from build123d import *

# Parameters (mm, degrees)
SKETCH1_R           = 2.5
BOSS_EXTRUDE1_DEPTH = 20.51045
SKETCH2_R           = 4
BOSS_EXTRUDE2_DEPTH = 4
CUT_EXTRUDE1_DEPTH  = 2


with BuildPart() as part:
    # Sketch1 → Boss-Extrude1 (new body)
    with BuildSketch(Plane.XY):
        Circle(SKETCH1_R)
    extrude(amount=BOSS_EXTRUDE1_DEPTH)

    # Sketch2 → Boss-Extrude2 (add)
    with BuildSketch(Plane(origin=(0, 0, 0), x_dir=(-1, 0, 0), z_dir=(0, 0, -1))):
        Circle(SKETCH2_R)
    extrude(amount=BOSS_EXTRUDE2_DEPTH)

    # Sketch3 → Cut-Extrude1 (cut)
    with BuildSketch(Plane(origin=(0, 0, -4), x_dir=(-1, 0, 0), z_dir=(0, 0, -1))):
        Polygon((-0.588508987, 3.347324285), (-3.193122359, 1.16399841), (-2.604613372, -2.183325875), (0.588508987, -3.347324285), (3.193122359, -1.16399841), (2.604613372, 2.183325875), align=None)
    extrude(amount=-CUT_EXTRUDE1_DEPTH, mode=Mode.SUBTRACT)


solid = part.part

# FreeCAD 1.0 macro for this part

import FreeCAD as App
import Part
import Sketcher
from FreeCAD import Vector
Q = App.Units.Quantity

doc = App.newDocument("Part")
body = doc.addObject("PartDesign::Body", "Body")

# Sketch on XY plane
sketch1 = body.newObject("Sketcher::SketchObject", "Sketch")
sketch1.AttachmentSupport = (doc.getObject("XY_Plane"), [""])
sketch1.MapMode = "FlatFace"
sketch1.addGeometry(Part.Circle(Vector(0, 0, 0), Vector(0, 0, 1), 2.5), False)
sketch1.addConstraint(Sketcher.Constraint("Coincident", 0, 3, -1, 1))
sketch1.addConstraint(Sketcher.Constraint("Diameter", 0, Q("5 mm")))
pad1 = body.newObject("PartDesign::Pad", "Pad")
pad1.Profile = sketch1
pad1.Length = 20.51045

# Sketch on XY plane
sketch2 = body.newObject("Sketcher::SketchObject", "Sketch001")
sketch2.AttachmentSupport = (doc.getObject("XY_Plane"), [""])
sketch2.MapMode = "FlatFace"
sketch2.addGeometry(Part.Circle(Vector(0, 0, 0), Vector(0, 0, 1), 4), False)
sketch2.addConstraint(Sketcher.Constraint("Coincident", 0, 3, -1, 1))
sketch2.addConstraint(Sketcher.Constraint("Diameter", 0, Q("8 mm")))
pad2 = body.newObject("PartDesign::Pad", "Pad001")
pad2.Profile = sketch2
pad2.Length = 4
pad2.Reversed = True

# Sketch on XY plane
sketch3 = body.newObject("Sketcher::SketchObject", "Sketch002")
sketch3.AttachmentSupport = (doc.getObject("XY_Plane"), [""])
sketch3.MapMode = "FlatFace"
sketch3.AttachmentOffset = App.Placement(Vector(0, 0, -4), App.Rotation())
sketch3.addGeometry(Part.LineSegment(Vector(0.6, 3.3, 0), Vector(3.2, 1.2, 0)), False)
sketch3.addGeometry(Part.LineSegment(Vector(3.2, 1.2, 0), Vector(2.6, -2.2, 0)), False)
sketch3.addGeometry(Part.LineSegment(Vector(2.6, -2.2, 0), Vector(-0.6, -3.3, 0)), False)
sketch3.addGeometry(Part.LineSegment(Vector(-0.6, -3.3, 0), Vector(-3.2, -1.2, 0)), False)
sketch3.addGeometry(Part.LineSegment(Vector(-3.2, -1.2, 0), Vector(-2.6, 2.2, 0)), False)
sketch3.addGeometry(Part.LineSegment(Vector(-2.6, 2.2, 0), Vector(0.6, 3.3, 0)), False)
sketch3.addConstraint(Sketcher.Constraint("Coincident", 0, 2, 1, 1))
sketch3.addConstraint(Sketcher.Constraint("Coincident", 1, 2, 2, 1))
sketch3.addConstraint(Sketcher.Constraint("Coincident", 2, 2, 3, 1))
sketch3.addConstraint(Sketcher.Constraint("Coincident", 3, 2, 4, 1))
sketch3.addConstraint(Sketcher.Constraint("Coincident", 4, 2, 5, 1))
sketch3.addConstraint(Sketcher.Constraint("Coincident", 5, 2, 0, 1))
sketch3.addConstraint(Sketcher.Constraint("Symmetric", 0, 2, 3, 2, -1, 1))
sketch3.addConstraint(Sketcher.Constraint("Symmetric", 1, 2, 4, 2, -1, 1))
sketch3.addConstraint(Sketcher.Constraint("Symmetric", 2, 2, 5, 2, -1, 1))
sketch3.addConstraint(Sketcher.Constraint("Equal", 0, 1))
sketch3.addConstraint(Sketcher.Constraint("Equal", 1, 2))
sketch3.addConstraint(Sketcher.Constraint("DistanceY", -1, 1, 0, 2, Q("1.163998 mm")))
sketch3.addConstraint(Sketcher.Constraint("DistanceY", 2, 2, 1, 2, Q("1.163998 mm")))
sketch3.addConstraint(Sketcher.Constraint("DistanceX", 2, 2, -1, 1, Q("0.588509 mm")))
sketch3.addConstraint(Sketcher.Constraint("DistanceX", 1, 2, 0, 2, Q("0.588509 mm")))
pocket1 = body.newObject("PartDesign::Pocket", "Pocket")
pocket1.Profile = sketch3
pocket1.Length = 2
pocket1.Reversed = True

doc.recompute()
